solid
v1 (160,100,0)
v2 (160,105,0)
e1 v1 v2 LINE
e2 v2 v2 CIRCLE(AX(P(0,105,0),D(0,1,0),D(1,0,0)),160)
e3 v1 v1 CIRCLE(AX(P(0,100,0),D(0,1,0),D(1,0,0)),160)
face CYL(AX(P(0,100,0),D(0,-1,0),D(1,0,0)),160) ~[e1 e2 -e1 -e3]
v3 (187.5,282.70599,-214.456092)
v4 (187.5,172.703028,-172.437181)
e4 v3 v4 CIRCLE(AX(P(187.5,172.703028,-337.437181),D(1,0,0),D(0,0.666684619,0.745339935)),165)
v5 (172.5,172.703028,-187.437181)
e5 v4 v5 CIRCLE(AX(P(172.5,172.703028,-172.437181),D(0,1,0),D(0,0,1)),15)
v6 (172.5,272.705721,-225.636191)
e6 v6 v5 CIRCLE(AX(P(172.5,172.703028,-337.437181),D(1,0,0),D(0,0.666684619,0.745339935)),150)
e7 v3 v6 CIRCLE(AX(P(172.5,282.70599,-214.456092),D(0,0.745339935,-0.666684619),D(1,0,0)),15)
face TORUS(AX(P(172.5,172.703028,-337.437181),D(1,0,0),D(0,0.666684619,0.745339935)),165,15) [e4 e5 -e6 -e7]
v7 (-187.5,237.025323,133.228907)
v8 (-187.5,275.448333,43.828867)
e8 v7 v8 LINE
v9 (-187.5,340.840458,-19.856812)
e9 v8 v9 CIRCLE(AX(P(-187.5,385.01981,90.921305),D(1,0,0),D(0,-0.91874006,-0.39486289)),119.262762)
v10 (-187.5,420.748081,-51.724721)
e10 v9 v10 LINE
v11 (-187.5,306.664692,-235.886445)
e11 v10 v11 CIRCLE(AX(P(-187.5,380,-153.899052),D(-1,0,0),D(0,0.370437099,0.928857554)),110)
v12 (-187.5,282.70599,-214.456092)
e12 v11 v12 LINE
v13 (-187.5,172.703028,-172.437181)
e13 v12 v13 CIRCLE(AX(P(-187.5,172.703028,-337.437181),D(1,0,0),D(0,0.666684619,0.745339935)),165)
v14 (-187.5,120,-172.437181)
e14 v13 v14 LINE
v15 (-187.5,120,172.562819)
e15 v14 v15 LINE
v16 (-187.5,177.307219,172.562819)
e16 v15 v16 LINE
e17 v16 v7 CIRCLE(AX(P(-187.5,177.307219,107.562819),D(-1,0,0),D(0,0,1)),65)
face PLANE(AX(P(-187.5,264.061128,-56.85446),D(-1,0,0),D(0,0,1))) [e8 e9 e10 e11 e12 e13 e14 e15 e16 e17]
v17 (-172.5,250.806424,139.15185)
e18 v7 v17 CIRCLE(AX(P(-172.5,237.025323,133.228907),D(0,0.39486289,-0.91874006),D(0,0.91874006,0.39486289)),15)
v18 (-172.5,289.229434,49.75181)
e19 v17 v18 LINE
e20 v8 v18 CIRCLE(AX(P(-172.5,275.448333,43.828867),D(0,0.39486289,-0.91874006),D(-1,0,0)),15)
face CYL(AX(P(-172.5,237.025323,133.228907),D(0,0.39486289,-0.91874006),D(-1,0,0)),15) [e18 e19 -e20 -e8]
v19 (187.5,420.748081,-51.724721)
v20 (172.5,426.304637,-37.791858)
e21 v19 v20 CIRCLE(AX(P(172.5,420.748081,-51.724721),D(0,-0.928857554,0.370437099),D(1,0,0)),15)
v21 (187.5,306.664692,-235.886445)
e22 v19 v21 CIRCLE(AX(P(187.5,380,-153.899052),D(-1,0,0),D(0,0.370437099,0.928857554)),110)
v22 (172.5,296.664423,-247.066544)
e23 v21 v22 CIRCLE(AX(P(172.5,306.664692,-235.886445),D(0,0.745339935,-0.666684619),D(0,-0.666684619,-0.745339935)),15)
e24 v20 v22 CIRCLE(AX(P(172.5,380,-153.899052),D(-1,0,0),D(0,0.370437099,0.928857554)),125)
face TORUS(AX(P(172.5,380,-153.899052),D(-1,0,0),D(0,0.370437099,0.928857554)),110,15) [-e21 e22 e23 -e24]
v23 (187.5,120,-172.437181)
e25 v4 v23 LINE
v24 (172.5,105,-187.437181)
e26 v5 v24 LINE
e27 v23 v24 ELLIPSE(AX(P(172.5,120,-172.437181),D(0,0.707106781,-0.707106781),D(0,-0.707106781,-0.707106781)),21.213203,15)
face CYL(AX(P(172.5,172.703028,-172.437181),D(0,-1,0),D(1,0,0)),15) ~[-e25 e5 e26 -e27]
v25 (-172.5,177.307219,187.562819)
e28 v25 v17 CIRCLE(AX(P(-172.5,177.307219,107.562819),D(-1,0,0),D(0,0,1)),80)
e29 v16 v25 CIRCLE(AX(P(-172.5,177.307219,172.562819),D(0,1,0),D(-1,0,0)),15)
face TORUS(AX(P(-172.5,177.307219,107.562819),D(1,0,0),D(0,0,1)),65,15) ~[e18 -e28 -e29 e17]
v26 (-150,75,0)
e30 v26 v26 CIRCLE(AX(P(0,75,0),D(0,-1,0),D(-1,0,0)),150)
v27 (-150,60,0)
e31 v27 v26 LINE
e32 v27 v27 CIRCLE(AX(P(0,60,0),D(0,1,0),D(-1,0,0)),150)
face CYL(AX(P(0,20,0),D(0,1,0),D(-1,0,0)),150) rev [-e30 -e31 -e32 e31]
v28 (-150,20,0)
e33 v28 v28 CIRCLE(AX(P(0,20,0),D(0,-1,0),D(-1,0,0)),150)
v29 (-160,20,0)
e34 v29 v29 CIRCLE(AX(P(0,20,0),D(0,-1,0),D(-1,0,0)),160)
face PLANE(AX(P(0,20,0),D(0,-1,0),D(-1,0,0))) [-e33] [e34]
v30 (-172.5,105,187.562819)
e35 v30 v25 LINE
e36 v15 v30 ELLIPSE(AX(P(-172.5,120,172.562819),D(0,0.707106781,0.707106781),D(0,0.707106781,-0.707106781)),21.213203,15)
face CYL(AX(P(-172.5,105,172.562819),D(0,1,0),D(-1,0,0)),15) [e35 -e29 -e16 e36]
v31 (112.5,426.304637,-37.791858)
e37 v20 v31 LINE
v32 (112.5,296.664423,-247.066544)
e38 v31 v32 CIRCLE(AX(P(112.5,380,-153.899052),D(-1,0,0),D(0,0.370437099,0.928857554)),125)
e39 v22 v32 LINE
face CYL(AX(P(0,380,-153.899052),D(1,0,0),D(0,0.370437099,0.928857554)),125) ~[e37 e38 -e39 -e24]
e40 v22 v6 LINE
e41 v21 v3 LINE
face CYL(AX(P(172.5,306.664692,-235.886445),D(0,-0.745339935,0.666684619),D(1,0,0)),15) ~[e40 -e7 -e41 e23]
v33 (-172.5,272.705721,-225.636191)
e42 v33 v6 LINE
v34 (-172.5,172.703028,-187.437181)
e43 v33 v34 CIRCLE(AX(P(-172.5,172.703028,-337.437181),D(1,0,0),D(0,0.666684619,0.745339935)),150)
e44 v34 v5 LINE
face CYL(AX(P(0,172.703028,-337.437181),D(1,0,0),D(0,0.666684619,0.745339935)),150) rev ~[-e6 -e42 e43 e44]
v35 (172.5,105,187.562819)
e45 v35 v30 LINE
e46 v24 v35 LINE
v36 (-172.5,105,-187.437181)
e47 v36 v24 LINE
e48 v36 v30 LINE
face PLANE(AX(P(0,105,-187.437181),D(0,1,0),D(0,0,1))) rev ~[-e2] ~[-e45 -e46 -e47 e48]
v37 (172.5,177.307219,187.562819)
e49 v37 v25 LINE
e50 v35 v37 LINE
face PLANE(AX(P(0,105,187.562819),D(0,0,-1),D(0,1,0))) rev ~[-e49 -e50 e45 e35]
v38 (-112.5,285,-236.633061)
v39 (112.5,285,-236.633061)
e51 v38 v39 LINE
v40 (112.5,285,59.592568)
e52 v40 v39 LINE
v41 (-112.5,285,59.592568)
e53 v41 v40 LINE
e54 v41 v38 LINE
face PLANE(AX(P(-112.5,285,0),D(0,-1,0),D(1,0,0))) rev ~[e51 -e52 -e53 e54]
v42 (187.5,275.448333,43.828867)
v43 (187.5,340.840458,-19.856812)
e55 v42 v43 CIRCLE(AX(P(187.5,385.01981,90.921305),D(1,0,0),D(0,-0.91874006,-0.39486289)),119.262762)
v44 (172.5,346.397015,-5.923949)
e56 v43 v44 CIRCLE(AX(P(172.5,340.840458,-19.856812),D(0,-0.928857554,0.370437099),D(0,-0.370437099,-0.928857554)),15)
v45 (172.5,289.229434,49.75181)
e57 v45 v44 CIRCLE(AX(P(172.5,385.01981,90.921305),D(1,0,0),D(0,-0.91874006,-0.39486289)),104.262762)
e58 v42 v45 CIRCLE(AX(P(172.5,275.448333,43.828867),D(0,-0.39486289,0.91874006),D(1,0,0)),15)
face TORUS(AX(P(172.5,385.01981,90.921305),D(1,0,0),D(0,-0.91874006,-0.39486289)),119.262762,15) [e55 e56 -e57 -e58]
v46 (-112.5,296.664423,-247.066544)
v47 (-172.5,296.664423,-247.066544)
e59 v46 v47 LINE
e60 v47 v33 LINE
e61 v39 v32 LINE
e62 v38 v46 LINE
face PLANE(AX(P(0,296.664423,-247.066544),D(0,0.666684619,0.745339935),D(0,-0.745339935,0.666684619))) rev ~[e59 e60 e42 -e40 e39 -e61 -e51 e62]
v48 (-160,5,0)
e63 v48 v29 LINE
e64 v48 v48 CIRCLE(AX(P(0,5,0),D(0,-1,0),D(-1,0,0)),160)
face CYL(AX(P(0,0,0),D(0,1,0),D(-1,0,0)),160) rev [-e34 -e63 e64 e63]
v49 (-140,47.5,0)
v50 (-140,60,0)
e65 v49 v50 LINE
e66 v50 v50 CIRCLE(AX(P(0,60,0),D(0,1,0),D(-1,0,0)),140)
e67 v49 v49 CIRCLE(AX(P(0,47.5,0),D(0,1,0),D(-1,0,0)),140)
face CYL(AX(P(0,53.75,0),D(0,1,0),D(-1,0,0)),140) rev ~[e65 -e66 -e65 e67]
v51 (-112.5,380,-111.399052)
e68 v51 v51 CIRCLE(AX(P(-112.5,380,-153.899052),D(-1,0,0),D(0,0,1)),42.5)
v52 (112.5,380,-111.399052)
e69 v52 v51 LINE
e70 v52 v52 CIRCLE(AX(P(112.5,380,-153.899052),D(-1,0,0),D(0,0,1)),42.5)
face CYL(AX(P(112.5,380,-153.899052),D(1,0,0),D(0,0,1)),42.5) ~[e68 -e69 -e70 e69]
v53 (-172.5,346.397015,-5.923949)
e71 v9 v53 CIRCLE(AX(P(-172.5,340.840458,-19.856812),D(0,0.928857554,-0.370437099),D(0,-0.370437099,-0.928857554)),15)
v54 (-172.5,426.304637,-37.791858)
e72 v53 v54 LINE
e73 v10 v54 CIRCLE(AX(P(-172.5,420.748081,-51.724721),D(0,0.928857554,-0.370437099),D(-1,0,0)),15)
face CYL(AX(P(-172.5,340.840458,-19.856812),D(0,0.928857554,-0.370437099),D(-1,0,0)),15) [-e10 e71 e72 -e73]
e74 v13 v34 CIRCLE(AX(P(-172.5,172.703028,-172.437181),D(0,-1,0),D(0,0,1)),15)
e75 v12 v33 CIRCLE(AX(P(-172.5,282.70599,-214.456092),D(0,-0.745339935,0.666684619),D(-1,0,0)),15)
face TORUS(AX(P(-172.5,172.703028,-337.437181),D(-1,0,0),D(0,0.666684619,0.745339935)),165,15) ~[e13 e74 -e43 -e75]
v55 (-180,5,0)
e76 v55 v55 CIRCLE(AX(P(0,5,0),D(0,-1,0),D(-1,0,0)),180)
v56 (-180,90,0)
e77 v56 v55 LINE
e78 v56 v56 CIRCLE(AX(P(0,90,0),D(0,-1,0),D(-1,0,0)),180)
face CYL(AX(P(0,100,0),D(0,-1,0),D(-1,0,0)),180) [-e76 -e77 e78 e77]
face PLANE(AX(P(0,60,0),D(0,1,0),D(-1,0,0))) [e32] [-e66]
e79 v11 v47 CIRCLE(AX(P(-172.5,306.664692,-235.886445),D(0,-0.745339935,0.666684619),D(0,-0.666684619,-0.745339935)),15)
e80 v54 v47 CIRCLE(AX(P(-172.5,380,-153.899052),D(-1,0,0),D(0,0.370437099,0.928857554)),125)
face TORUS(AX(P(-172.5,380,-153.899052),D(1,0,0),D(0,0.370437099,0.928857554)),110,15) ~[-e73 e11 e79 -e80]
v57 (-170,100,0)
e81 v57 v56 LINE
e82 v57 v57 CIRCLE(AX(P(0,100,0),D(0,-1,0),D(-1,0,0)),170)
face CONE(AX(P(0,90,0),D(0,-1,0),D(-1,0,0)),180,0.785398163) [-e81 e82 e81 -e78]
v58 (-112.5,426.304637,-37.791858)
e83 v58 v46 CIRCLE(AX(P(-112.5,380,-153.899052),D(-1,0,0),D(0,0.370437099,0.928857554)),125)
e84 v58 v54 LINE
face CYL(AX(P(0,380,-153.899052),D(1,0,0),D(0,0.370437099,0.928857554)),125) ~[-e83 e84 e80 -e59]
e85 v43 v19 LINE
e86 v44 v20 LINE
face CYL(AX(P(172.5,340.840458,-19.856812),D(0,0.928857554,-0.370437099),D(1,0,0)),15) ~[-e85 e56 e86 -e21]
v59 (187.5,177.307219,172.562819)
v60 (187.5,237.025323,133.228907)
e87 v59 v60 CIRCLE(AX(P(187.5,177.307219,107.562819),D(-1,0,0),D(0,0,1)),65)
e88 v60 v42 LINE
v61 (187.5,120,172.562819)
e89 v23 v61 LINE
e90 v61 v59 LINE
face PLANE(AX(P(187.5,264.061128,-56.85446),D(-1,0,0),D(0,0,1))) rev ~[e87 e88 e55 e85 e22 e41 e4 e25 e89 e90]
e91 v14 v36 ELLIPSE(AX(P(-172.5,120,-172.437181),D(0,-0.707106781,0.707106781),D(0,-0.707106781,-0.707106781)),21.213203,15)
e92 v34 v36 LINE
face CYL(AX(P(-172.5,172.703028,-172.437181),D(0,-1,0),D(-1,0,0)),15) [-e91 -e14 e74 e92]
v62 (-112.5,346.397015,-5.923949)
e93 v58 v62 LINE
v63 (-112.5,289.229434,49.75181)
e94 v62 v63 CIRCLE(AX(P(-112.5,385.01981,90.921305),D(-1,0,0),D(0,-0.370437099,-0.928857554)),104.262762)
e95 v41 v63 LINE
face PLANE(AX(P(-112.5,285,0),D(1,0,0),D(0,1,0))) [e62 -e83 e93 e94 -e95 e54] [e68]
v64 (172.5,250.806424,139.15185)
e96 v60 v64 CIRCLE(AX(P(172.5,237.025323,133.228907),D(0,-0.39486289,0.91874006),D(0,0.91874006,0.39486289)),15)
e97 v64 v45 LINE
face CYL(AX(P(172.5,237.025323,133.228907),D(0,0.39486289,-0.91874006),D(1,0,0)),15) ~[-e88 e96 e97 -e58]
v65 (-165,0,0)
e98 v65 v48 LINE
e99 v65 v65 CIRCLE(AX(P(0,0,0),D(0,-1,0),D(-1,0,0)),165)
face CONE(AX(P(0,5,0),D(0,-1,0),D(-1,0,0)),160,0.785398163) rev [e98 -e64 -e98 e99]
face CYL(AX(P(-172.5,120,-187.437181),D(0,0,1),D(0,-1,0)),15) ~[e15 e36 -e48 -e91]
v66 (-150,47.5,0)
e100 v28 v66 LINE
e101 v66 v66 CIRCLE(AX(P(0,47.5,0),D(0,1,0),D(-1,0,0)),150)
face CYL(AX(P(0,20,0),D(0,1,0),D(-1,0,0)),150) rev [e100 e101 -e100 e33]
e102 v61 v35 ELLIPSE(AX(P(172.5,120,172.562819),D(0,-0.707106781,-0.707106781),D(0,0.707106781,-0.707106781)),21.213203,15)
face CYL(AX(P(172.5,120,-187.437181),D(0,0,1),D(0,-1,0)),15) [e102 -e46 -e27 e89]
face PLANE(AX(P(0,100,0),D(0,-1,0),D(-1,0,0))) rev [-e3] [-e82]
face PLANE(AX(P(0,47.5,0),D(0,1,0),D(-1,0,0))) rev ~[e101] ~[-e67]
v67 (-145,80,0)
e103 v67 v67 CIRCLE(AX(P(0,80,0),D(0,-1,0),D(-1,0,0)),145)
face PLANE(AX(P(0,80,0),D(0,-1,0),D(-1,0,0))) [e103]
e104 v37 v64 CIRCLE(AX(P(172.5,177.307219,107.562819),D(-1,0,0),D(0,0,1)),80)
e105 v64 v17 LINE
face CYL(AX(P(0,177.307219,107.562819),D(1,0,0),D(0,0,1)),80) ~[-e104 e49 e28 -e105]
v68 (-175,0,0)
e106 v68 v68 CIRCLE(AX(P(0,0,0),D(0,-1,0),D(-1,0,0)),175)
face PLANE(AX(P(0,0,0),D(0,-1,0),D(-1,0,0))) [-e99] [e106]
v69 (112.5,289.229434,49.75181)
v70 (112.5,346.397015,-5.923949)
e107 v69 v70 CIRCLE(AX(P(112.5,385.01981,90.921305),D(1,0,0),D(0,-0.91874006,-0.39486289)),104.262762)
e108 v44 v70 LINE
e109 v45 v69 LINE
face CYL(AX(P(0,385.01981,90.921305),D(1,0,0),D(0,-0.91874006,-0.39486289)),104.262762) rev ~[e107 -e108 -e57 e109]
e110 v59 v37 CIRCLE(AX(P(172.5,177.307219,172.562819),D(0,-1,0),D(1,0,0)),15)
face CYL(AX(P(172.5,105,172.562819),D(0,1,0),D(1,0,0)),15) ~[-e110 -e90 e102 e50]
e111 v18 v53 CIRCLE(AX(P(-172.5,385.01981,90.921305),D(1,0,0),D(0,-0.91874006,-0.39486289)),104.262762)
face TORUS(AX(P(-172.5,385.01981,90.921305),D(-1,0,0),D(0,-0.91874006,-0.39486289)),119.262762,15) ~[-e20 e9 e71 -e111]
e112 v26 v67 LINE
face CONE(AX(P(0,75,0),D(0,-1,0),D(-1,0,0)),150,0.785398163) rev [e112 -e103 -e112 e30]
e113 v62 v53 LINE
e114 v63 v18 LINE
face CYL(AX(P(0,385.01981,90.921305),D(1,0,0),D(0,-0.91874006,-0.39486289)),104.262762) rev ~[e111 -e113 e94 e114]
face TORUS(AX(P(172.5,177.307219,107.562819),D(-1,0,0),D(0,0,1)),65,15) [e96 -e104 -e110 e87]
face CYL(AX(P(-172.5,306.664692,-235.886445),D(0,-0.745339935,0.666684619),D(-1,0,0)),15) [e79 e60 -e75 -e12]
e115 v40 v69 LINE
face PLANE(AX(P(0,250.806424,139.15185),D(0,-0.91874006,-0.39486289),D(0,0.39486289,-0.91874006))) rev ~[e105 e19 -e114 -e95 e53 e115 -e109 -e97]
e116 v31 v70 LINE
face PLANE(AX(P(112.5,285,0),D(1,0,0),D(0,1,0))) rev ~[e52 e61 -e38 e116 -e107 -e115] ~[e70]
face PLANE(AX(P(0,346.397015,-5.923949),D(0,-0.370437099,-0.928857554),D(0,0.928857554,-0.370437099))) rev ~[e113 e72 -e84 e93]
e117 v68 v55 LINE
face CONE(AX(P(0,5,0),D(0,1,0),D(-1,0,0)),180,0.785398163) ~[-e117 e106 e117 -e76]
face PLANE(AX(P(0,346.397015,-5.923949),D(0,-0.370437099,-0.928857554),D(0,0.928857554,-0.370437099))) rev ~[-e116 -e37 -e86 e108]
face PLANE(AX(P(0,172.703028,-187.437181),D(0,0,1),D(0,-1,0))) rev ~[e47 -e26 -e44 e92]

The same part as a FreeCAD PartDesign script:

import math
import FreeCAD as App
import Part
import Sketcher

V = App.Vector
Q = App.Units.Quantity


def edges_at(feature, points):
    """Names of the edges that pass closest to the given points."""
    edges = feature.Shape.Edges
    near = lambda p: min(range(len(edges)), key=lambda i: edges[i].distToShape(Part.Vertex(*p))[0])
    return sorted({f"Edge{near(p) + 1}" for p in points})


def add_polygon(sketch, points):
    """Adds a closed chain of lines whose ends are joined by coincident constraints."""
    first, n = sketch.GeometryCount, len(points)
    for a, b in zip(points, points[1:] + points[:1]):
        sketch.addGeometry(Part.LineSegment(App.Vector(*a, 0), App.Vector(*b, 0)), False)
    for i in range(n):
        sketch.addConstraint(Sketcher.Constraint("Coincident", first + i, 2, first + (i + 1) % n, 1))

doc = App.newDocument("Part")
params = doc.addObject("Spreadsheet::Sheet", "Params")
for row, (alias, value) in enumerate([
    ("sketch1_width", "10 mm"),
    ("sketch1_width2", "150 mm"),
    ("sketch1_width3", "180 mm"),
    ("sketch1_height", "60 mm"),
    ("revolution_angle", "360 deg"),
    ("chamfer_size", "10 mm"),
    ("chamfer2_size", "5 mm"),
    ("chamfer3_size", "5 mm"),
    ("sketch2_diameter", "320 mm"),
    ("pad1_length", "5 mm"),
    ("sketch3_radius", "150 mm"),
    ("sketch3_radius2", "125 mm"),
    ("sketch3_radius3", "80 mm"),
    ("sketch3_height", "375 mm"),
    ("pad2_length", "375 mm"),
    ("fillet_radius", "15 mm"),
    ("sketch4_width", "225 mm"),
    ("sketch4_height", "220 mm"),
    ("sketch5_diameter", "85 mm"),
    ("pad3_length", "225 mm"),
    ("sketch6_width", "10 mm"),
    ("sketch6_height", "12.5 mm"),
    ("revolution2_angle", "360 deg"),
], start=1):
    params.set(f"A{row}", alias)
    params.set(f"B{row}", "=" + value)
    params.setAlias(f"B{row}", alias)

body = doc.addObject("PartDesign::Body", "Body")

sketch1 = body.newObject("Sketcher::SketchObject", "Sketch")
sketch1.AttachmentSupport = (doc.getObject("XY_Plane"), [""])
sketch1.MapMode = "FlatFace"
add_polygon(sketch1, [(-160, 0), (-160, 20), (-150, 20), (-150, 80), (0, 80), (0, 100), (-180, 100), (-180, 0)])
sketch1.addConstraint([
    Sketcher.Constraint("Vertical", 0),
    Sketcher.Constraint("Horizontal", 1),
    Sketcher.Constraint("Vertical", 2),
    Sketcher.Constraint("Horizontal", 3),
    Sketcher.Constraint("Vertical", 4),
    Sketcher.Constraint("Horizontal", 5),
    Sketcher.Constraint("Vertical", 6),
    Sketcher.Constraint("Horizontal", 7),
    Sketcher.Constraint("PointOnObject", 3, 2, -2),
    Sketcher.Constraint("PointOnObject", 6, 2, -1),
    Sketcher.Constraint("Equal", 7, 0),
    Sketcher.Constraint("Equal", 0, 4),
    Sketcher.Constraint("DistanceX", 1, 1, 1, 2, Q("10 mm")),
    Sketcher.Constraint("DistanceX", 3, 1, 3, 2, Q("150 mm")),
    Sketcher.Constraint("DistanceX", 5, 2, 5, 1, Q("180 mm")),
    Sketcher.Constraint("DistanceY", 2, 1, 2, 2, Q("60 mm")),
])
sketch1.setExpression("Constraints[20]", "Params.sketch1_width")
sketch1.setExpression("Constraints[21]", "Params.sketch1_width2")
sketch1.setExpression("Constraints[22]", "Params.sketch1_width3")
sketch1.setExpression("Constraints[23]", "Params.sketch1_height")
revolution = body.newObject("PartDesign::Revolution", "Revolution")
revolution.Profile = sketch1
revolution.ReferenceAxis = (sketch1, ["V_Axis"])
revolution.setExpression("Angle", "Params.revolution_angle")
doc.recompute()

chamfer = body.newObject("PartDesign::Chamfer", "Chamfer")
chamfer.Base = (revolution, edges_at(revolution, [(180, 100, 0)]))
chamfer.setExpression("Size", "Params.chamfer_size")
doc.recompute()

chamfer2 = body.newObject("PartDesign::Chamfer", "Chamfer001")
chamfer2.Base = (chamfer, edges_at(chamfer, [(150, 80, 0), (160, 0, 0)]))
chamfer2.setExpression("Size", "Params.chamfer2_size")
doc.recompute()

chamfer3 = body.newObject("PartDesign::Chamfer", "Chamfer002")
chamfer3.Base = (chamfer2, edges_at(chamfer2, [(180, 0, 0)]))
chamfer3.setExpression("Size", "Params.chamfer3_size")

sketch2 = body.newObject("Sketcher::SketchObject", "Sketch001")
sketch2.AttachmentSupport = (doc.getObject("XZ_Plane"), [""])
sketch2.MapMode = "FlatFace"
sketch2.AttachmentOffset = App.Placement(V(0, 0, -100), App.Rotation())
sketch2.addGeometry(Part.Circle(V(0, 0, 0), V(0, 0, 1), 160), False)
sketch2.addConstraint([
    Sketcher.Constraint("Coincident", 0, 3, -1, 1),
    Sketcher.Constraint("Diameter", 0, Q("320 mm")),
])
sketch2.setExpression("Constraints[1]", "Params.sketch2_diameter")
pad1 = body.newObject("PartDesign::Pad", "Pad")
pad1.Profile = sketch2
pad1.setExpression("Length", "Params.pad1_length")
pad1.Reversed = True

sketch3 = body.newObject("Sketcher::SketchObject", "Sketch002")
sketch3.AttachmentSupport = (doc.getObject("YZ_Plane"), [""])
sketch3.MapMode = "FlatFace"
sketch3.addGeometry([
    Part.LineSegment(V(105, 188, 0), V(105, -187, 0)),
    Part.LineSegment(V(105, -187, 0), V(173, -187, 0)),
    Part.ArcOfCircle(Part.Circle(V(173, -337, 0), V(0, 0, 1), 150), math.radians(48), math.radians(90)),
    Part.LineSegment(V(273, -226, 0), V(297, -247, 0)),
    Part.ArcOfCircle(Part.Circle(V(380, -154, 0), V(0, 0, 1), 125), math.radians(-132), math.radians(68)),
    Part.LineSegment(V(426, -38, 0), V(346, -6, 0)),
    Part.ArcOfCircle(Part.Circle(V(385, 91, 0), V(0, 0, 1), 104), math.radians(-157), math.radians(-112)),
    Part.LineSegment(V(289, 50, 0), V(251, 139, 0)),
    Part.ArcOfCircle(Part.Circle(V(177, 108, 0), V(0, 0, 1), 80), math.radians(23), math.radians(90)),
    Part.LineSegment(V(177, 188, 0), V(105, 188, 0)),
], False)
sketch3.addConstraint([
    Sketcher.Constraint("Coincident", 0, 2, 1, 1),
    Sketcher.Constraint("Tangent", 1, 2, 2, 2),
    Sketcher.Constraint("Tangent", 2, 1, 3, 1),
    Sketcher.Constraint("Tangent", 3, 2, 4, 1),
    Sketcher.Constraint("Tangent", 4, 2, 5, 1),
    Sketcher.Constraint("Tangent", 5, 2, 6, 2),
    Sketcher.Constraint("Tangent", 6, 1, 7, 1),
    Sketcher.Constraint("Tangent", 7, 2, 8, 1),
    Sketcher.Constraint("Tangent", 8, 2, 9, 1),
    Sketcher.Constraint("Coincident", 9, 2, 0, 1),
    Sketcher.Constraint("Vertical", 0),
    Sketcher.Constraint("Horizontal", 1),
    Sketcher.Constraint("Horizontal", 9),
    Sketcher.Constraint("Radius", 2, Q("150 mm")),
    Sketcher.Constraint("Radius", 4, Q("125 mm")),
    Sketcher.Constraint("Radius", 8, Q("80 mm")),
    Sketcher.Constraint("DistanceY", 0, 2, 0, 1, Q("375 mm")),
    Sketcher.Constraint("DistanceX", -1, 1, 4, 3, Q("380 mm")),
    Sketcher.Constraint("DistanceX", -1, 1, 0, 2, Q("105 mm")),
    Sketcher.Constraint("Radius", 6, Q("104.262762 mm")),
    Sketcher.Constraint("DistanceX", 1, 1, 1, 2, Q("67.703028 mm")),
    Sketcher.Constraint("DistanceX", 9, 2, 9, 1, Q("72.307219 mm")),
    Sketcher.Constraint("DistanceX", 2, 1, 3, 2, Q("23.958701 mm")),
    Sketcher.Constraint("DistanceY", 5, 2, 7, 2, Q("145.075799 mm")),
    Sketcher.Constraint("Distance", 7, Q("97.307219 mm")),
    Sketcher.Constraint("DistanceY", 2, 3, -1, 1, Q("337.437181 mm")),
])
sketch3.setExpression("Constraints[13]", "Params.sketch3_radius")
sketch3.setExpression("Constraints[14]", "Params.sketch3_radius2")
sketch3.setExpression("Constraints[15]", "Params.sketch3_radius3")
sketch3.setExpression("Constraints[16]", "Params.sketch3_height")
pad2 = body.newObject("PartDesign::Pad", "Pad001")
pad2.Profile = sketch3
pad2.setExpression("Length", "Params.pad2_length")
pad2.Midplane = True
doc.recompute()

fillet = body.newObject("PartDesign::Fillet", "Fillet")
fillet.Base = (pad2, edges_at(pad2, [
    (-187.5, 141.154, 187.563),
    (-187.5, 105, 0.063),
    (-187.5, 138.852, -187.437),
    (-187.5, 226.228, -197.312),
    (-187.5, 284.685, -236.351),
    (-187.5, 486.263, -219.726),
    (-187.5, 386.351, -21.858),
    (-187.5, 312.276, 16.228),
    (-187.5, 270.018, 94.452),
    (-187.5, 221.312, 174.373),
    (187.5, 141.154, 187.563),
    (187.5, 105, 0.063),
    (187.5, 138.852, -187.437),
    (187.5, 226.228, -197.312),
    (187.5, 284.685, -236.351),
    (187.5, 486.263, -219.726),
    (187.5, 386.351, -21.858),
    (187.5, 312.276, 16.228),
    (187.5, 270.018, 94.452),
    (187.5, 221.312, 174.373),
]))
fillet.setExpression("Radius", "Params.fillet_radius")

sketch4 = body.newObject("Sketcher::SketchObject", "Sketch003")
sketch4.AttachmentSupport = (doc.getObject("XY_Plane"), [""])
sketch4.MapMode = "FlatFace"
add_polygon(sketch4, [(-112, 505), (-112, 285), (112, 285), (112, 505)])
sketch4.addConstraint([
    Sketcher.Constraint("Vertical", 0),
    Sketcher.Constraint("Horizontal", 1),
    Sketcher.Constraint("Vertical", 2),
    Sketcher.Constraint("Horizontal", 3),
    Sketcher.Constraint("DistanceX", 1, 1, 1, 2, Q("225 mm")),
    Sketcher.Constraint("DistanceY", 0, 2, 0, 1, Q("220 mm")),
    Sketcher.Constraint("DistanceY", -1, 1, 0, 2, Q("285 mm")),
    Sketcher.Constraint("DistanceX", 0, 2, -1, 1, Q("112.5 mm")),
])
sketch4.setExpression("Constraints[8]", "Params.sketch4_width")
sketch4.setExpression("Constraints[9]", "Params.sketch4_height")
pocket1 = body.newObject("PartDesign::Pocket", "Pocket")
pocket1.Profile = sketch4
pocket1.Type = "ThroughAll"
pocket1.Midplane = True

sketch5 = body.newObject("Sketcher::SketchObject", "Sketch004")
sketch5.AttachmentSupport = (doc.getObject("YZ_Plane"), [""])
sketch5.MapMode = "FlatFace"
sketch5.AttachmentOffset = App.Placement(V(0, 0, 112.5), App.Rotation())
sketch5.addGeometry(Part.Circle(V(380, -154, 0), V(0, 0, 1), 42), False)
sketch5.addConstraint([
    Sketcher.Constraint("Diameter", 0, Q("85 mm")),
    Sketcher.Constraint("DistanceX", -1, 1, 0, 3, Q("380 mm")),
    Sketcher.Constraint("DistanceY", 0, 3, -1, 1, Q("153.899052 mm")),
])
sketch5.setExpression("Constraints[0]", "Params.sketch5_diameter")
pad3 = body.newObject("PartDesign::Pad", "Pad002")
pad3.Profile = sketch5
pad3.setExpression("Length", "Params.pad3_length")
pad3.Reversed = True

sketch6 = body.newObject("Sketcher::SketchObject", "Sketch005")
sketch6.AttachmentSupport = (doc.getObject("XY_Plane"), [""])
sketch6.MapMode = "FlatFace"
add_polygon(sketch6, [(-150, 60), (-150, 48), (-140, 48), (-140, 60)])
sketch6.addConstraint([
    Sketcher.Constraint("Vertical", 0),
    Sketcher.Constraint("Horizontal", 1),
    Sketcher.Constraint("Vertical", 2),
    Sketcher.Constraint("Horizontal", 3),
    Sketcher.Constraint("DistanceX", 1, 1, 1, 2, Q("10 mm")),
    Sketcher.Constraint("DistanceY", 0, 2, 0, 1, Q("12.5 mm")),
    Sketcher.Constraint("DistanceX", 0, 2, -1, 1, Q("150 mm")),
    Sketcher.Constraint("DistanceY", -1, 1, 2, 2, Q("60 mm")),
])
sketch6.setExpression("Constraints[8]", "Params.sketch6_width")
sketch6.setExpression("Constraints[9]", "Params.sketch6_height")
revolution2 = body.newObject("PartDesign::Revolution", "Revolution001")
revolution2.Profile = sketch6
revolution2.ReferenceAxis = (sketch6, ["V_Axis"])
revolution2.setExpression("Angle", "Params.revolution2_angle")

doc.recompute()
